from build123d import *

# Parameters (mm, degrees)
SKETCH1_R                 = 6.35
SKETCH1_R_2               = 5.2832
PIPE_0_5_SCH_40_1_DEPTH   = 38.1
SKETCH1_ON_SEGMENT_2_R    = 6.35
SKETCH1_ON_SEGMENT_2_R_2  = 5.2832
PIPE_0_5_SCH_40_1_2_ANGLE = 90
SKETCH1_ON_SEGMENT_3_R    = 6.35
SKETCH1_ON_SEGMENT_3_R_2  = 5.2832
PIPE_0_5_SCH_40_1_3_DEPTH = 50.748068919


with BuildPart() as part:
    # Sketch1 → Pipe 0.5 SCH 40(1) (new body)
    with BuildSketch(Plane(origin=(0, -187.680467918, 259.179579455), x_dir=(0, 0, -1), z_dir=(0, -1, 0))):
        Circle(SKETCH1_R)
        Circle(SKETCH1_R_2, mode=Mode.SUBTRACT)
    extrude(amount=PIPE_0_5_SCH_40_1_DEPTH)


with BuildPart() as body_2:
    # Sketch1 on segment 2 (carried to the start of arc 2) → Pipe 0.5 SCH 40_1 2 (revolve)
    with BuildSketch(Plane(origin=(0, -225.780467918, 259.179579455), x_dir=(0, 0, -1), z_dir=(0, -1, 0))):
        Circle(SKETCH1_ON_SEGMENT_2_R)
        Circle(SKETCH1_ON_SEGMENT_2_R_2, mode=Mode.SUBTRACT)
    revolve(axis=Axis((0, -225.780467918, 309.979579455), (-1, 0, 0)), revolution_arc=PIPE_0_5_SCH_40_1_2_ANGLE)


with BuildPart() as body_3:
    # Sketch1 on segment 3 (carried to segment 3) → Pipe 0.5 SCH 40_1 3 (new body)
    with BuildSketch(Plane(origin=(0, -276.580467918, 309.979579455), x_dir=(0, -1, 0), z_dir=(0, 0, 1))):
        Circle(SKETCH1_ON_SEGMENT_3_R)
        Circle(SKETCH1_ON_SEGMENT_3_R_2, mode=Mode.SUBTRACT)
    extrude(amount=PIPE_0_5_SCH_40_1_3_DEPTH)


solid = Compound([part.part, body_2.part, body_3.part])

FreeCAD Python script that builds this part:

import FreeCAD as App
import Part
import Sketcher
Q = App.Units.Quantity

doc = App.newDocument("Part")
body = doc.addObject("PartDesign::Body", "Body")

sketch1 = body.newObject("Sketcher::SketchObject", "Sketch")
sketch1.AttachmentSupport = (doc.getObject("XZ_Plane"), [""])
sketch1.MapMode = "FlatFace"
sketch1.AttachmentOffset = App.Placement(App.Vector(0, 0, 187.680468), App.Rotation())
sketch1.addGeometry(Part.Circle(App.Vector(0, 259, 0), App.Vector(0, 0, 1), 6), False)
sketch1.addGeometry(Part.Circle(App.Vector(0, 259, 0), App.Vector(0, 0, 1), 5), False)
sketch1.addConstraint(Sketcher.Constraint("Coincident", 1, 3, 0, 3))
sketch1.addConstraint(Sketcher.Constraint("PointOnObject", 0, 3, -2))
sketch1.addConstraint(Sketcher.Constraint("Diameter", 0, Q("0.5 in")))
sketch1.addConstraint(Sketcher.Constraint("Diameter", 1, Q("0.416 in")))
sketch1.addConstraint(Sketcher.Constraint("DistanceY", -1, 1, 0, 3, Q("259.179579 mm")))
pad1 = body.newObject("PartDesign::Pad", "Pad")
pad1.Profile = sketch1
pad1.Length = Q("1.5 in")
body2 = doc.addObject("PartDesign::Body", "Body001")

sketch2 = body2.newObject("Sketcher::SketchObject", "Sketch001")
sketch2.AttachmentSupport = (doc.getObject("XZ_Plane001"), [""])
sketch2.MapMode = "FlatFace"
sketch2.AttachmentOffset = App.Placement(App.Vector(0, 0, 225.780468), App.Rotation())
sketch2.addGeometry(Part.Circle(App.Vector(0, 259, 0), App.Vector(0, 0, 1), 6), False)
sketch2.addGeometry(Part.Circle(App.Vector(0, 259, 0), App.Vector(0, 0, 1), 5), False)
sketch2.addGeometry(Part.LineSegment(App.Vector(0, 310, 0), App.Vector(-10, 310, 0)), True)
sketch2.addConstraint(Sketcher.Constraint("Horizontal", 2))
sketch2.addConstraint(Sketcher.Constraint("Coincident", 1, 3, 0, 3))
sketch2.addConstraint(Sketcher.Constraint("PointOnObject", 0, 3, -2))
sketch2.addConstraint(Sketcher.Constraint("PointOnObject", 2, 1, -2))
sketch2.addConstraint(Sketcher.Constraint("Diameter", 0, Q("0.5 in")))
sketch2.addConstraint(Sketcher.Constraint("Diameter", 1, Q("0.416 in")))
sketch2.addConstraint(Sketcher.Constraint("DistanceY", 0, 3, 2, 1, Q("2 in")))
sketch2.addConstraint(Sketcher.Constraint("DistanceX", 2, 2, 2, 1, Q("10 mm")))
sketch2.addConstraint(Sketcher.Constraint("DistanceY", -1, 1, 0, 3, Q("259.179579 mm")))
revolution = body2.newObject("PartDesign::Revolution", "Revolution")
revolution.Profile = sketch2
revolution.ReferenceAxis = (sketch2, ["Axis0"])
revolution.Angle = 90
body3 = doc.addObject("PartDesign::Body", "Body002")

sketch3 = body3.newObject("Sketcher::SketchObject", "Sketch002")
sketch3.AttachmentSupport = (doc.getObject("XY_Plane002"), [""])
sketch3.MapMode = "FlatFace"
sketch3.AttachmentOffset = App.Placement(App.Vector(0, 0, 309.979579), App.Rotation())
sketch3.addGeometry(Part.Circle(App.Vector(0, -277, 0), App.Vector(0, 0, 1), 6), False)
sketch3.addGeometry(Part.Circle(App.Vector(0, -277, 0), App.Vector(0, 0, 1), 5), False)
sketch3.addConstraint(Sketcher.Constraint("Coincident", 1, 3, 0, 3))
sketch3.addConstraint(Sketcher.Constraint("PointOnObject", 0, 3, -2))
sketch3.addConstraint(Sketcher.Constraint("Diameter", 0, Q("0.5 in")))
sketch3.addConstraint(Sketcher.Constraint("Diameter", 1, Q("0.416 in")))
sketch3.addConstraint(Sketcher.Constraint("DistanceY", 0, 3, -1, 1, Q("276.580468 mm")))
pad2 = body3.newObject("PartDesign::Pad", "Pad001")
pad2.Profile = sketch3
pad2.Length = 50.748069

doc.recompute()
